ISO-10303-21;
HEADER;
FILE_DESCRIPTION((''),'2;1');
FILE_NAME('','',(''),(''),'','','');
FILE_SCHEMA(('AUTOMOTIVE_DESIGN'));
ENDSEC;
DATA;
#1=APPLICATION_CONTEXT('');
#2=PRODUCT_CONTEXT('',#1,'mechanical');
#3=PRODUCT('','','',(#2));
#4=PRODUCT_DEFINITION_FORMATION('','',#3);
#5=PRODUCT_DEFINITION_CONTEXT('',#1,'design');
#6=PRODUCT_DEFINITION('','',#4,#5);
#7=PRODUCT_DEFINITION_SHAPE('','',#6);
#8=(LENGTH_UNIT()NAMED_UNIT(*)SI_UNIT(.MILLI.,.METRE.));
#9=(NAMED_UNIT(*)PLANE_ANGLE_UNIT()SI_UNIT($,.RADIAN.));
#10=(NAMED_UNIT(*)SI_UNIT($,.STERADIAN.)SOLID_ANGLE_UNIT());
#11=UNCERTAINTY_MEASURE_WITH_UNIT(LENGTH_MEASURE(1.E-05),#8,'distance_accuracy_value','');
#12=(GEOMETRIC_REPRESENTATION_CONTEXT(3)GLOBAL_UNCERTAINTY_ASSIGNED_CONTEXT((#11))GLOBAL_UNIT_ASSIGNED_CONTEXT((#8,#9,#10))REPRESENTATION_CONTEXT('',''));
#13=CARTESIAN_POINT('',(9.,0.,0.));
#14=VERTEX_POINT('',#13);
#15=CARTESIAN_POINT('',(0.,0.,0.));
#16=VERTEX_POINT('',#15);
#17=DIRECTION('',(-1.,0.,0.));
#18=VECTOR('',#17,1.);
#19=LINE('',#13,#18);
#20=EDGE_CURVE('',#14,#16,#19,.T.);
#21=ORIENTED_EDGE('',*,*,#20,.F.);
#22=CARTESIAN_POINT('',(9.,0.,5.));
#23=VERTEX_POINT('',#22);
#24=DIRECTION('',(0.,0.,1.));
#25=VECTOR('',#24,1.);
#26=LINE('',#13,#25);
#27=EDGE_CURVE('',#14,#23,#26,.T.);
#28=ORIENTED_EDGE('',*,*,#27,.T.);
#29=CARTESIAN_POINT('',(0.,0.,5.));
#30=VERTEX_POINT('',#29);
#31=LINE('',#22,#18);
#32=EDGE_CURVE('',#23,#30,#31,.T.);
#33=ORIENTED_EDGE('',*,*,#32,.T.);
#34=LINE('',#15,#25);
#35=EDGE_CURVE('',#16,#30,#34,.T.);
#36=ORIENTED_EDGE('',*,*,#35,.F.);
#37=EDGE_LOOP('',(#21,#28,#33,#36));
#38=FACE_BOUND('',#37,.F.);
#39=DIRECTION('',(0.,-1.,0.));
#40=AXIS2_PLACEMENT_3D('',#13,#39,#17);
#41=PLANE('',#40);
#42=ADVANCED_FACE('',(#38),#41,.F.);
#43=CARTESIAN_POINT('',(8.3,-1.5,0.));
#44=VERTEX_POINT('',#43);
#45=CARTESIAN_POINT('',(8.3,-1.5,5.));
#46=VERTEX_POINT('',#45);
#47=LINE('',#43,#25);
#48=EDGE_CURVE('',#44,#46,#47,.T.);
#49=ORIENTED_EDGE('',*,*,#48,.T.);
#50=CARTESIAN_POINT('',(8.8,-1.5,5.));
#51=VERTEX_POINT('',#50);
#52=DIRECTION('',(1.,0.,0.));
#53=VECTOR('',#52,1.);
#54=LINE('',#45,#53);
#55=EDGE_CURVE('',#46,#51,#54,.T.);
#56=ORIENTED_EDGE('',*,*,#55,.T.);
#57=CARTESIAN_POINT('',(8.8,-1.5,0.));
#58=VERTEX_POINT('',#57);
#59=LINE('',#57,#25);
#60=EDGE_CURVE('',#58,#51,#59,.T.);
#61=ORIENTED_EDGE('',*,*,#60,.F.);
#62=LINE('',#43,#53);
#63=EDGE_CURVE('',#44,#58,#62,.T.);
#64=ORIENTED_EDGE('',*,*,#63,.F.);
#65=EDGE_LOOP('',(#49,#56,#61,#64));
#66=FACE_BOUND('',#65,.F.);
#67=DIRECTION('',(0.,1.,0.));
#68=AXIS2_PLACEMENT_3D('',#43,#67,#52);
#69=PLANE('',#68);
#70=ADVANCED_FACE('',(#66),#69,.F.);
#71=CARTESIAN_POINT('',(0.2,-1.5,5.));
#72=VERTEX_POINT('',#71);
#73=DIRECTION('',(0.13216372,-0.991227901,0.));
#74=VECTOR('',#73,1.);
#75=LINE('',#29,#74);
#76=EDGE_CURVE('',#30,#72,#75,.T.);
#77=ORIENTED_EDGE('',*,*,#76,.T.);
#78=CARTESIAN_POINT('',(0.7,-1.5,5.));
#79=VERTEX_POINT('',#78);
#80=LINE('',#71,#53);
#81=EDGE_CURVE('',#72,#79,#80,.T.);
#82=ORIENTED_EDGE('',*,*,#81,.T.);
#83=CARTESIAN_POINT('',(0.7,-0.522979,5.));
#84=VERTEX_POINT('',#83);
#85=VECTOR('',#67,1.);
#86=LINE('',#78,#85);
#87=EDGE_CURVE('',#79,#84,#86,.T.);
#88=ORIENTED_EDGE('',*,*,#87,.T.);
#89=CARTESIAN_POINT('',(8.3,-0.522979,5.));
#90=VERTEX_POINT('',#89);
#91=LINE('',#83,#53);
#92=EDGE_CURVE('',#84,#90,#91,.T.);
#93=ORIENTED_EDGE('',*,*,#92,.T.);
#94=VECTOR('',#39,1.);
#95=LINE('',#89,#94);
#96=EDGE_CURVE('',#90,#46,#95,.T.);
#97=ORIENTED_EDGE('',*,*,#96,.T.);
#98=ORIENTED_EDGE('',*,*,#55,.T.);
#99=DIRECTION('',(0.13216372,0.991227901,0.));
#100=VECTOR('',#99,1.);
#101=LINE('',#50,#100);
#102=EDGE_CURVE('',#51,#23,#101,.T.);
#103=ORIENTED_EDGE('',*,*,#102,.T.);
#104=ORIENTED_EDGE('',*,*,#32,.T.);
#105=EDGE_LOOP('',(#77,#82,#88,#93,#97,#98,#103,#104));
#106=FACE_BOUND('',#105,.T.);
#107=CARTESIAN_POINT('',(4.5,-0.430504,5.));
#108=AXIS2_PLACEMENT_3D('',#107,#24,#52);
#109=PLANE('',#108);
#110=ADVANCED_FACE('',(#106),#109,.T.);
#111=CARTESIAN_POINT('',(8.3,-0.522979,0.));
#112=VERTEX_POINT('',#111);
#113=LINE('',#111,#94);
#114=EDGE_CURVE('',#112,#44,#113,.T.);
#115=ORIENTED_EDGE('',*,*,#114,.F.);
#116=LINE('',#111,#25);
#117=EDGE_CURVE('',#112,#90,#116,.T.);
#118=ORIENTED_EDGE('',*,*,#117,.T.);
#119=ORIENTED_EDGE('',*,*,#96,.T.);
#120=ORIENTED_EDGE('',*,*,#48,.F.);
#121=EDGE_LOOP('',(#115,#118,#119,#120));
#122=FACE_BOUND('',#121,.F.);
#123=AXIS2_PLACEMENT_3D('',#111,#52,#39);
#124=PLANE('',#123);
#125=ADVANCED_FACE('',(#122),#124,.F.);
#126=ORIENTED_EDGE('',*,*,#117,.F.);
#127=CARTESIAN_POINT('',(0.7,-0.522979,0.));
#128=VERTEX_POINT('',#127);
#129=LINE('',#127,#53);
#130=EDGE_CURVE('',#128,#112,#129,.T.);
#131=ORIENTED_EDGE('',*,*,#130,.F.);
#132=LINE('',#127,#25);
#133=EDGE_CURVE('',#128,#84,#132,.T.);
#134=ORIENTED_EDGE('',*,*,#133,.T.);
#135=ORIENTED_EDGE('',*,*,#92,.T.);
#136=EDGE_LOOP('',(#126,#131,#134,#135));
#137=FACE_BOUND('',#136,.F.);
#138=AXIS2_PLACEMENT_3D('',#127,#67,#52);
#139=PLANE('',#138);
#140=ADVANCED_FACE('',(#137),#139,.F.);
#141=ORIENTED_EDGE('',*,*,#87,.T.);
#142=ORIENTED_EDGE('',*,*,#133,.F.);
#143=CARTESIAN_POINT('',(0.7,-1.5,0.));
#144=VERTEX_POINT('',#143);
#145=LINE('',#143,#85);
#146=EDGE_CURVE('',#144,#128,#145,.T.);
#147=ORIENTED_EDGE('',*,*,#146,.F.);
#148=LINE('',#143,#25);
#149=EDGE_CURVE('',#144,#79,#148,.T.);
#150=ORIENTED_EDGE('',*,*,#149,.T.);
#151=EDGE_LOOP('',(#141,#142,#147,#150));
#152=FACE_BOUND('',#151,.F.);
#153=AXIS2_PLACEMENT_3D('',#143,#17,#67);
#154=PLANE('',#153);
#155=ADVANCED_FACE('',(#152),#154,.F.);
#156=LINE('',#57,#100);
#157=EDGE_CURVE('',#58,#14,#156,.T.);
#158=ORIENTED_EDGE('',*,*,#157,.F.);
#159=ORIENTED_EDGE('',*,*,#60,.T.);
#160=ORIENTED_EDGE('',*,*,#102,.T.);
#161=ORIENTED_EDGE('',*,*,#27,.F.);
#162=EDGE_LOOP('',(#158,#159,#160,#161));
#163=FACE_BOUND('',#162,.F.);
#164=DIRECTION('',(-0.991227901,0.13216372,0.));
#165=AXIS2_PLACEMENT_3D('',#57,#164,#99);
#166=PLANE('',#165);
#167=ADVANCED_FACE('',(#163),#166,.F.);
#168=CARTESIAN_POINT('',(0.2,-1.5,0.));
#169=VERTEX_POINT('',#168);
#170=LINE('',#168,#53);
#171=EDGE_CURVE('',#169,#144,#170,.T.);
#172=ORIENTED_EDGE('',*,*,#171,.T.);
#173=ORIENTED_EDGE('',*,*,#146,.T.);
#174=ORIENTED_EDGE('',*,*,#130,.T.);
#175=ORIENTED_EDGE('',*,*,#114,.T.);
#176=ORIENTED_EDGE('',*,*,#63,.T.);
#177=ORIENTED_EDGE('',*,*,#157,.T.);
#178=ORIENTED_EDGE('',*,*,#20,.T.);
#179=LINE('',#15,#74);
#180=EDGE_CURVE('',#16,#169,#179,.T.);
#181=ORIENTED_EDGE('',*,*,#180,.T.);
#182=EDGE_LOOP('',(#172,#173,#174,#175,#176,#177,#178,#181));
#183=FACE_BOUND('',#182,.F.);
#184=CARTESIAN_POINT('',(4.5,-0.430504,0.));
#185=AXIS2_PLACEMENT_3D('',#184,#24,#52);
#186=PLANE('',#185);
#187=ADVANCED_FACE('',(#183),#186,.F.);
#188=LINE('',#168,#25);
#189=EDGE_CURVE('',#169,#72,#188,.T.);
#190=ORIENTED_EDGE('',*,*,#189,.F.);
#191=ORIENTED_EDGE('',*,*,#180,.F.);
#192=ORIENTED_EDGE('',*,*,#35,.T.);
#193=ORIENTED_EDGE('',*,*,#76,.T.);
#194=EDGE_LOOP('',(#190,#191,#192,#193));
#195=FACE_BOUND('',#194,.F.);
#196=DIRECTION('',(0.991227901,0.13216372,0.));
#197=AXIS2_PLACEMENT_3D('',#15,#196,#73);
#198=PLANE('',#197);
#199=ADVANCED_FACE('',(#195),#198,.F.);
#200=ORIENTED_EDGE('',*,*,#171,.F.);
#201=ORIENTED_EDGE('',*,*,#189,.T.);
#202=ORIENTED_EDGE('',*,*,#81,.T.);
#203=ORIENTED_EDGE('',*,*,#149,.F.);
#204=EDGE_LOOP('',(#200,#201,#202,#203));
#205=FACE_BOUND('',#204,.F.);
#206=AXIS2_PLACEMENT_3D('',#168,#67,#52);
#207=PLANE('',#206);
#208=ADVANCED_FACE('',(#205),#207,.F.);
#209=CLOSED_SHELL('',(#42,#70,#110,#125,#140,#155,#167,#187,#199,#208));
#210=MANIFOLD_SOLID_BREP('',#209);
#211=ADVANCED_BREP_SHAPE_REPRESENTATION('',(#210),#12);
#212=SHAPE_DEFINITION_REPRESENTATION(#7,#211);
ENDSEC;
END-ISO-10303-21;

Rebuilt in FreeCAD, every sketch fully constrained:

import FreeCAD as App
import Part
import Sketcher
Q = App.Units.Quantity


def add_polygon(sketch, points):
    """Adds a closed chain of lines whose ends are joined by coincident constraints."""
    first, n = sketch.GeometryCount, len(points)
    for a, b in zip(points, points[1:] + points[:1]):
        sketch.addGeometry(Part.LineSegment(App.Vector(*a, 0), App.Vector(*b, 0)), False)
    for i in range(n):
        sketch.addConstraint(Sketcher.Constraint("Coincident", first + i, 2, first + (i + 1) % n, 1))

doc = App.newDocument("Part")
body = doc.addObject("PartDesign::Body", "Body")

# Sketch on XY plane
sketch1 = doc.addObject("Sketcher::SketchObject", "Sketch")
body.addObject(sketch1)
sketch1.AttachmentSupport = (doc.XY_Plane, [""])
sketch1.MapMode = "FlatFace"
add_polygon(sketch1, [(0.7, -1.5), (0.7, -0.522979), (8.3, -0.522979), (8.3, -1.5), (8.8, -1.5), (9, 0), (0, 0), (0.2, -1.5)])  # lines 0-7
sketch1.addConstraint(Sketcher.Constraint("Vertical", 0))
sketch1.addConstraint(Sketcher.Constraint("Horizontal", 1))
sketch1.addConstraint(Sketcher.Constraint("Vertical", 2))
sketch1.addConstraint(Sketcher.Constraint("Horizontal", 3))
sketch1.addConstraint(Sketcher.Constraint("Horizontal", 5))
sketch1.addConstraint(Sketcher.Constraint("Horizontal", 7))
sketch1.addConstraint(Sketcher.Constraint("Coincident", 5, 2, -1, 1))
sketch1.addConstraint(Sketcher.Constraint("Horizontal", 3, 2, 6, 2))
sketch1.addConstraint(Sketcher.Constraint("Equal", 3, 7))
sketch1.addConstraint(Sketcher.Constraint("Equal", 4, 6))
sketch1.addConstraint(Sketcher.Constraint("DistanceX", 5, 2, 5, 1, Q("9 mm")))
sketch1.addConstraint(Sketcher.Constraint("DistanceX", 1, 1, 1, 2, Q("7.6 mm")))
sketch1.addConstraint(Sketcher.Constraint("DistanceX", 3, 1, 3, 2, Q("0.5 mm")))
sketch1.addConstraint(Sketcher.Constraint("DistanceY", 2, 2, -1, 1, Q("1.5 mm")))
sketch1.addConstraint(Sketcher.Constraint("DistanceY", 0, 1, 0, 2, Q("0.977021 mm")))
pad1 = doc.addObject("PartDesign::Pad", "Pad")
body.addObject(pad1)
pad1.Profile = sketch1
pad1.Length = 5

doc.recompute()
